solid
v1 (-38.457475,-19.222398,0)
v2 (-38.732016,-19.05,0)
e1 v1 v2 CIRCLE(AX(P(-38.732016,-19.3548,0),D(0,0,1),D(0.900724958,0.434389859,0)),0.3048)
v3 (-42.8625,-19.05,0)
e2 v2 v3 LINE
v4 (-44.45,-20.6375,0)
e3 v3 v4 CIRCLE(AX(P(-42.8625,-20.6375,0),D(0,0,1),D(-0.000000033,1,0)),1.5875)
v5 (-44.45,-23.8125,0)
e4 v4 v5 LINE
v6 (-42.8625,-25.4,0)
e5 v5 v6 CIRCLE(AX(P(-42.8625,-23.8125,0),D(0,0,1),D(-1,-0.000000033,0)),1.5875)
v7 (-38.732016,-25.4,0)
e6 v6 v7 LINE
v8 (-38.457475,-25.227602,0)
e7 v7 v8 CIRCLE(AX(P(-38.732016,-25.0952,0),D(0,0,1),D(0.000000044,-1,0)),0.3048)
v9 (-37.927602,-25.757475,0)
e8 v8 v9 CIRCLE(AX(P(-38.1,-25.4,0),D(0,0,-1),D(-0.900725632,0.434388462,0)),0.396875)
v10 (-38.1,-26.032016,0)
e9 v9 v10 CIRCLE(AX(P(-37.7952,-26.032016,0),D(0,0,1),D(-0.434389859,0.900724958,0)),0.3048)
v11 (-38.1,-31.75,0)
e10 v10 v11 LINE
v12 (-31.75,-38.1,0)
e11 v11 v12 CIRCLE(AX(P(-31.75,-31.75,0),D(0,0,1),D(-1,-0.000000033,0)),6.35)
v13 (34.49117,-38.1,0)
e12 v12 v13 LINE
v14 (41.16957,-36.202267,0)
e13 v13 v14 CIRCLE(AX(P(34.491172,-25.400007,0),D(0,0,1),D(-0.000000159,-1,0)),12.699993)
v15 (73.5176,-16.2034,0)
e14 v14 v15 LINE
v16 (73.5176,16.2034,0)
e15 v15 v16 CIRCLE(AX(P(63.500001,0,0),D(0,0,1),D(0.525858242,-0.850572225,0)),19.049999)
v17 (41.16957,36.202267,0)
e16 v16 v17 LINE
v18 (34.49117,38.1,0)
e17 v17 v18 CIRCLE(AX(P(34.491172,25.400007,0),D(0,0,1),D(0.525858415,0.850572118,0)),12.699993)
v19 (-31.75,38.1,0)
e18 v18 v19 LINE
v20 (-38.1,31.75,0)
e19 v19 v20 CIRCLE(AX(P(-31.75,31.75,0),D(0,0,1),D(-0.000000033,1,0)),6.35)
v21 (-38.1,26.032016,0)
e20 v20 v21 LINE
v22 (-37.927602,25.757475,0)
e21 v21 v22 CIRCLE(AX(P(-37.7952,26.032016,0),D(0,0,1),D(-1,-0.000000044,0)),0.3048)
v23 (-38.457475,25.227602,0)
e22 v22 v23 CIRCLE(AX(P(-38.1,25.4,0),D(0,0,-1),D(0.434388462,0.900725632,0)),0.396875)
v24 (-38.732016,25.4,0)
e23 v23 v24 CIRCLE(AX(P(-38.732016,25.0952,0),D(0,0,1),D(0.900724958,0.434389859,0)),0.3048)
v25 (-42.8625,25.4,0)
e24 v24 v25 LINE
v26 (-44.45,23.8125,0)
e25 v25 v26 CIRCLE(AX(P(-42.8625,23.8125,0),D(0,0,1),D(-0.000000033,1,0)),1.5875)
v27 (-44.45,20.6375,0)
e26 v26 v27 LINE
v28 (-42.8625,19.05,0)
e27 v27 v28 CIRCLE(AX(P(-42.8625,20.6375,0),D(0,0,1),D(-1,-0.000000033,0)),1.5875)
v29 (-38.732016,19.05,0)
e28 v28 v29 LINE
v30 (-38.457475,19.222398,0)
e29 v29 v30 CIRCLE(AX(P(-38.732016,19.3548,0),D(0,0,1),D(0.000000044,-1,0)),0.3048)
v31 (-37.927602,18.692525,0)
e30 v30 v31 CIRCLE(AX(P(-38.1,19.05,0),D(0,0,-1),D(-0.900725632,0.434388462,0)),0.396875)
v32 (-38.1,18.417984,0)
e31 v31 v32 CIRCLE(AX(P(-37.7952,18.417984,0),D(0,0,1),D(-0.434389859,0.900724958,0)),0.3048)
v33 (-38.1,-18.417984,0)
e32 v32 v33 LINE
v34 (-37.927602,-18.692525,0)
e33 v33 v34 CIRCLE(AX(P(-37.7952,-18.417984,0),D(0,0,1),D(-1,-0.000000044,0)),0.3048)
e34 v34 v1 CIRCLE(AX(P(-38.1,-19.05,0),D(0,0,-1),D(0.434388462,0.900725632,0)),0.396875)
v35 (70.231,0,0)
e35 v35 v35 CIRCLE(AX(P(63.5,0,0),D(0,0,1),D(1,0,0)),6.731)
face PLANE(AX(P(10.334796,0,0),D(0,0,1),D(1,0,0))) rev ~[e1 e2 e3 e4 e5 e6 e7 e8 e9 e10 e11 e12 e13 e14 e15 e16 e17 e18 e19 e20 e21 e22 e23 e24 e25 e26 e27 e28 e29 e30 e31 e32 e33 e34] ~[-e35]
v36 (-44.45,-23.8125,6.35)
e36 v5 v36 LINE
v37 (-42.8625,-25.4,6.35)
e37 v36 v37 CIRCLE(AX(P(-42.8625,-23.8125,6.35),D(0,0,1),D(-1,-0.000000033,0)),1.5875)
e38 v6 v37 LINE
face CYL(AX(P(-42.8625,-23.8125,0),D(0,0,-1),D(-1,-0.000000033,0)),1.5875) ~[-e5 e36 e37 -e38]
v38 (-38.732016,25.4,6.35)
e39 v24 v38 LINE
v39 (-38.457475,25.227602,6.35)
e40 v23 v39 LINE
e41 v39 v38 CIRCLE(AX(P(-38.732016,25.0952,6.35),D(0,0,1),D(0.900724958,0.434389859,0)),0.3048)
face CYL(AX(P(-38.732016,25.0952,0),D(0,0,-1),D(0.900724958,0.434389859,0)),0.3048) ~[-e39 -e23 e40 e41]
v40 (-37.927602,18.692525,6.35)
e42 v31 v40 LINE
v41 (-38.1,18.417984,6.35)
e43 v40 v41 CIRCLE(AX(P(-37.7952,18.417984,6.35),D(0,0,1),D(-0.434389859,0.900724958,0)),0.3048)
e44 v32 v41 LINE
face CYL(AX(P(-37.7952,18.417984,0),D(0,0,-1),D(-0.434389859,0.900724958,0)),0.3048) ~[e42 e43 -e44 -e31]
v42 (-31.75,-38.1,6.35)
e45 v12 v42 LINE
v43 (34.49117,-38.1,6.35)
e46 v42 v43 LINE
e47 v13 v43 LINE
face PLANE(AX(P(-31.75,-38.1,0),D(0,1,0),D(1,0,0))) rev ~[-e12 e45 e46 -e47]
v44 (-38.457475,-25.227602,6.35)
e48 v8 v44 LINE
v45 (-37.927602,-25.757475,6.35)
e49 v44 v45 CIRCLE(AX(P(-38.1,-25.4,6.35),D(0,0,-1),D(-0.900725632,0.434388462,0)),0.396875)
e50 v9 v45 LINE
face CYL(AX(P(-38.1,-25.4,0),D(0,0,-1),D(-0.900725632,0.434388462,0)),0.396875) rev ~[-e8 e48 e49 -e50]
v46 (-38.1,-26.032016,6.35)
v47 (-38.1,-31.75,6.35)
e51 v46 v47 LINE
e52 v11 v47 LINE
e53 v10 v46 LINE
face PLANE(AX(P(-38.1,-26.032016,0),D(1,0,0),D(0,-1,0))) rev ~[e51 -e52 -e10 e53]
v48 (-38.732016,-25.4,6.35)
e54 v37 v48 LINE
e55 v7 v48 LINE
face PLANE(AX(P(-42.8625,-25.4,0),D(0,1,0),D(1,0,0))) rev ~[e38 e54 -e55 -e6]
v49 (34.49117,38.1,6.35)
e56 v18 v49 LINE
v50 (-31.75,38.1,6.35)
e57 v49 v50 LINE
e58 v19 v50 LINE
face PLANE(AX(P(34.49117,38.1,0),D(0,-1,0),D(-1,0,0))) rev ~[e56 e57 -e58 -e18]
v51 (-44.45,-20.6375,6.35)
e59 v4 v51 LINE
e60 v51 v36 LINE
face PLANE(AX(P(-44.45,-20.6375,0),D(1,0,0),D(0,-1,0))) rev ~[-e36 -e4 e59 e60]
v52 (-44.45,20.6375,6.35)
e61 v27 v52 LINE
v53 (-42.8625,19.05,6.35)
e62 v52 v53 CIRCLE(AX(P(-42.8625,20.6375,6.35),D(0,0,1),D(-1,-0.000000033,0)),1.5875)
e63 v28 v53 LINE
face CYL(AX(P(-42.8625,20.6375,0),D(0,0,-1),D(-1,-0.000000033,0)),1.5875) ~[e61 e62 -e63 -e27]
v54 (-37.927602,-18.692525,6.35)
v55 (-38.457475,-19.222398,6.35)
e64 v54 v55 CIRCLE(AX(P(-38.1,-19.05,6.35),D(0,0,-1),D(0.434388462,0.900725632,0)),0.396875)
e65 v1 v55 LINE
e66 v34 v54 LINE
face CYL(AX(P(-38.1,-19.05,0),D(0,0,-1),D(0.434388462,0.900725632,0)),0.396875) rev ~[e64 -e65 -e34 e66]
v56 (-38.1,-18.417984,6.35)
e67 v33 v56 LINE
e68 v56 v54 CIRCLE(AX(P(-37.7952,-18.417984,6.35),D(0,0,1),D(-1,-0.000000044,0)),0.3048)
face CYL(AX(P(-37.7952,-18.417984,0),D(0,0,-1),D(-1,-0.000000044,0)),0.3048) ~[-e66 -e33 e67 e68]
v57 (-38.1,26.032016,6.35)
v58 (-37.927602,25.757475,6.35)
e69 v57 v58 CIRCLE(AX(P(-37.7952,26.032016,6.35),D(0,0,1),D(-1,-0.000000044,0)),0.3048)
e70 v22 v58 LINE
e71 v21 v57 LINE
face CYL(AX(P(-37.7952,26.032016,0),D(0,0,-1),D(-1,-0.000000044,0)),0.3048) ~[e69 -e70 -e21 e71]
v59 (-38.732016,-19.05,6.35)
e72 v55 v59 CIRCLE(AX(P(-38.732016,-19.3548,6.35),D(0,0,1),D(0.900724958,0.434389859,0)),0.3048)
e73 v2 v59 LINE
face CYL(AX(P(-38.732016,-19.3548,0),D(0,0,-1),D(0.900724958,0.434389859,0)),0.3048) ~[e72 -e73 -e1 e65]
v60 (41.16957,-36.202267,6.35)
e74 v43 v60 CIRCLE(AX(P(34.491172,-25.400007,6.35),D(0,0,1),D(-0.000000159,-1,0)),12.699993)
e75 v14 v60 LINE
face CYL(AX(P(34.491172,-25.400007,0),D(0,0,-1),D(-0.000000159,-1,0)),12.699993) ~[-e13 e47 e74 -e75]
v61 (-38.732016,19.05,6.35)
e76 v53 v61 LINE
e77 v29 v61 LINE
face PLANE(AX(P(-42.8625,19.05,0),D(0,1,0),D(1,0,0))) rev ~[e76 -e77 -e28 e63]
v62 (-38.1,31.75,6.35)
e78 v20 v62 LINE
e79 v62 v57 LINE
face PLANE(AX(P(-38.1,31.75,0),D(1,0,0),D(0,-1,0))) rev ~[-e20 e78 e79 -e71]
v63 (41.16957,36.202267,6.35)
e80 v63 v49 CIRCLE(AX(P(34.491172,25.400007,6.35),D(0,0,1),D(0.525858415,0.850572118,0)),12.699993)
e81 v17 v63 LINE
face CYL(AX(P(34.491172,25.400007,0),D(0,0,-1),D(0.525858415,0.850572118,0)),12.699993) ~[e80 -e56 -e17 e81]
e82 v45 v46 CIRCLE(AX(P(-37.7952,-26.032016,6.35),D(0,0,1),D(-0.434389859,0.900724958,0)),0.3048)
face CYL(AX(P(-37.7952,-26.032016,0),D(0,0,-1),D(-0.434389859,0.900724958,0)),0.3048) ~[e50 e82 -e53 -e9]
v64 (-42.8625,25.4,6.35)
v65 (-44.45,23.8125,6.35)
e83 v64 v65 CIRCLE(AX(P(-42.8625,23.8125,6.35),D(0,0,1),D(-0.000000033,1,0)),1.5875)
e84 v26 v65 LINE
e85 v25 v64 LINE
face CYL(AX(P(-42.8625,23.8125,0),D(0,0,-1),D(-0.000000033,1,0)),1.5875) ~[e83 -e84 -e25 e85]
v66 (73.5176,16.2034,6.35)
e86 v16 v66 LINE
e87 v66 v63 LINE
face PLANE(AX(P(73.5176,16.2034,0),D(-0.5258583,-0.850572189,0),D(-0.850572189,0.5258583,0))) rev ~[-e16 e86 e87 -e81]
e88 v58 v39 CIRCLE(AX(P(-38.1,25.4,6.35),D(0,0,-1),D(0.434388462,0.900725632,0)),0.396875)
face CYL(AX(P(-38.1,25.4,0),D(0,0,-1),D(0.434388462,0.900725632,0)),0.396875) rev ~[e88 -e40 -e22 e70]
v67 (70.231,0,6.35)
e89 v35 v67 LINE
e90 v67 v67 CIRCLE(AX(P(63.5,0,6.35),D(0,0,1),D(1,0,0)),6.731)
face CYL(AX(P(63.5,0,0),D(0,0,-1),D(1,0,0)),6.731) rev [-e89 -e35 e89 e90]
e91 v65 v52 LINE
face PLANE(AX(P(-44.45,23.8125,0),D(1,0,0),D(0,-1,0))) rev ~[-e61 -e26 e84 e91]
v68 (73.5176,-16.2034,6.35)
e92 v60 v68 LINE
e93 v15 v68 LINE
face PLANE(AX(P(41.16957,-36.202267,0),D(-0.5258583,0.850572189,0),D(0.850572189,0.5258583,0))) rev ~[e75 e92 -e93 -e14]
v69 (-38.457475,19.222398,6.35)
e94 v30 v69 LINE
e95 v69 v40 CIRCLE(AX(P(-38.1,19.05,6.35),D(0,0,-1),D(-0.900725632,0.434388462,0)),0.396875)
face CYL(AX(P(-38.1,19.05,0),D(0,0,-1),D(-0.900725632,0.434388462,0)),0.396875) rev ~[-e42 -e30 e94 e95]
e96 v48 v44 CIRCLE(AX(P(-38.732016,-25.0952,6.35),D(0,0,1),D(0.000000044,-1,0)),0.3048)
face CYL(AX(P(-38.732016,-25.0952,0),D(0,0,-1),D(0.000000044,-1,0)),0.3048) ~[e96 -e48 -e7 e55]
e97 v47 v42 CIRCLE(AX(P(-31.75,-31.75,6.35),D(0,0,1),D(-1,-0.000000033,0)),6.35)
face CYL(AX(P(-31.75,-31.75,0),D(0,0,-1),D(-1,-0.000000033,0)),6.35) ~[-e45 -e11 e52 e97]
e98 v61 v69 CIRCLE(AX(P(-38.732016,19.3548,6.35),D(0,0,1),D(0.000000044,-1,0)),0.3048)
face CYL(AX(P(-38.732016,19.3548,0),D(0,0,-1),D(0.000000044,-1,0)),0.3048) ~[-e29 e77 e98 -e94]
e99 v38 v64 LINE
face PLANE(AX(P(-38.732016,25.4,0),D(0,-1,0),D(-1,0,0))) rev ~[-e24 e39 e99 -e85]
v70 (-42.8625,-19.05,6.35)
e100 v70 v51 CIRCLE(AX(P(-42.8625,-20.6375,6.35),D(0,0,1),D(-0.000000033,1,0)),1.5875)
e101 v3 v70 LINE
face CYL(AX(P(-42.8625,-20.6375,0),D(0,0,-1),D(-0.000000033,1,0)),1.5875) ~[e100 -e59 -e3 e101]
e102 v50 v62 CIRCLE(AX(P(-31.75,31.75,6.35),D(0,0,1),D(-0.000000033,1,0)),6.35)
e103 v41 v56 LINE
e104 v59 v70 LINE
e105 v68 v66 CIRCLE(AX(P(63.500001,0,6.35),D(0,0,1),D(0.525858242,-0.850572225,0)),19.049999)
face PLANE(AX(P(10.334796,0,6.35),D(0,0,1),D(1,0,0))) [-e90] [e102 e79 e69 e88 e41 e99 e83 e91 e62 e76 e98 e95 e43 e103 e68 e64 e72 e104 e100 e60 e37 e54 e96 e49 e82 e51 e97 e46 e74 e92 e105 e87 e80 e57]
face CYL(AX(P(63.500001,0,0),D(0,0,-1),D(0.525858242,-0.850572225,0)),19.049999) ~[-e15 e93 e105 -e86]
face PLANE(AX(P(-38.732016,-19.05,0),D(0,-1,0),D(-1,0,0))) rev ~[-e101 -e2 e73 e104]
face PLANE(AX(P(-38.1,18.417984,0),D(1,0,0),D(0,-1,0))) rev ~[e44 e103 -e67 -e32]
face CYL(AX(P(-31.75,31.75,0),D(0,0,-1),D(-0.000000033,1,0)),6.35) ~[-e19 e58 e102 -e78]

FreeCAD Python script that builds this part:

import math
import FreeCAD as App
import Part
import Sketcher
from FreeCAD import Vector
Q = App.Units.Quantity

doc = App.newDocument("Part")
body = doc.addObject("PartDesign::Body", "Body")

# Sketch on XY plane
sketch1 = body.newObject("Sketcher::SketchObject", "Sketch")
sketch1.AttachmentSupport = (doc.getObject("XY_Plane"), [""])
sketch1.MapMode = "FlatFace"
sketch1.addGeometry(Part.ArcOfCircle(Part.Circle(Vector(34.491172, 25.400007, 0), Vector(0, 0, 1), 12.699993), math.radians(58.273951), math.radians(90.000009)), False)
sketch1.addGeometry(Part.LineSegment(Vector(34.49117, 38.1, 0), Vector(-31.75, 38.1, 0)), False)
sketch1.addGeometry(Part.ArcOfCircle(Part.Circle(Vector(-31.75, 31.75, 0), Vector(0, 0, 1), 6.35), math.radians(90.000002), math.radians(179.999998)), False)
sketch1.addGeometry(Part.LineSegment(Vector(-38.1, 31.75, 0), Vector(-38.1, 26.032016, 0)), False)
sketch1.addGeometry(Part.ArcOfCircle(Part.Circle(Vector(-37.7952, 26.032016, 0), Vector(0, 0, 1), 0.3048), math.radians(-179.999997), math.radians(-115.746476)), False)
sketch1.addGeometry(Part.ArcOfCircle(Part.Circle(Vector(-38.1, 25.4, 0), Vector(0, 0, 1), 0.396875), math.radians(-154.253613), math.radians(64.253613)), False)
sketch1.addGeometry(Part.ArcOfCircle(Part.Circle(Vector(-38.732016, 25.0952, 0), Vector(0, 0, 1), 0.3048), math.radians(25.746476), math.radians(89.999997)), False)
sketch1.addGeometry(Part.LineSegment(Vector(-38.732016, 25.4, 0), Vector(-42.8625, 25.4, 0)), False)
sketch1.addGeometry(Part.ArcOfCircle(Part.Circle(Vector(-42.8625, 23.8125, 0), Vector(0, 0, 1), 1.5875), math.radians(90.000002), math.radians(179.999998)), False)
sketch1.addGeometry(Part.LineSegment(Vector(-44.45, 23.8125, 0), Vector(-44.45, 20.6375, 0)), False)
sketch1.addGeometry(Part.ArcOfCircle(Part.Circle(Vector(-42.8625, 20.6375, 0), Vector(0, 0, 1), 1.5875), math.radians(-179.999998), math.radians(-90.000002)), False)
sketch1.addGeometry(Part.LineSegment(Vector(-42.8625, 19.05, 0), Vector(-38.732016, 19.05, 0)), False)
sketch1.addGeometry(Part.ArcOfCircle(Part.Circle(Vector(-38.732016, 19.3548, 0), Vector(0, 0, 1), 0.3048), math.radians(-89.999997), math.radians(-25.746476)), False)
sketch1.addGeometry(Part.ArcOfCircle(Part.Circle(Vector(-38.1, 19.05, 0), Vector(0, 0, 1), 0.396875), math.radians(-64.253613), math.radians(154.253613)), False)
sketch1.addGeometry(Part.ArcOfCircle(Part.Circle(Vector(-37.7952, 18.417984, 0), Vector(0, 0, 1), 0.3048), math.radians(115.746476), math.radians(179.999997)), False)
sketch1.addGeometry(Part.LineSegment(Vector(-38.1, 18.417984, 0), Vector(-38.1, -18.417984, 0)), False)
sketch1.addGeometry(Part.ArcOfCircle(Part.Circle(Vector(-37.7952, -18.417984, 0), Vector(0, 0, 1), 0.3048), math.radians(-179.999997), math.radians(-115.746476)), False)
sketch1.addGeometry(Part.ArcOfCircle(Part.Circle(Vector(-38.1, -19.05, 0), Vector(0, 0, 1), 0.396875), math.radians(-154.253613), math.radians(64.253613)), False)
sketch1.addGeometry(Part.ArcOfCircle(Part.Circle(Vector(-38.732016, -19.3548, 0), Vector(0, 0, 1), 0.3048), math.radians(25.746476), math.radians(89.999997)), False)
sketch1.addGeometry(Part.LineSegment(Vector(-38.732016, -19.05, 0), Vector(-42.8625, -19.05, 0)), False)
sketch1.addGeometry(Part.ArcOfCircle(Part.Circle(Vector(-42.8625, -20.6375, 0), Vector(0, 0, 1), 1.5875), math.radians(90.000002), math.radians(179.999998)), False)
sketch1.addGeometry(Part.LineSegment(Vector(-44.45, -20.6375, 0), Vector(-44.45, -23.8125, 0)), False)
sketch1.addGeometry(Part.ArcOfCircle(Part.Circle(Vector(-42.8625, -23.8125, 0), Vector(0, 0, 1), 1.5875), math.radians(-179.999998), math.radians(-90.000002)), False)
sketch1.addGeometry(Part.LineSegment(Vector(-42.8625, -25.4, 0), Vector(-38.732016, -25.4, 0)), False)
sketch1.addGeometry(Part.ArcOfCircle(Part.Circle(Vector(-38.732016, -25.0952, 0), Vector(0, 0, 1), 0.3048), math.radians(-89.999997), math.radians(-25.746476)), False)
sketch1.addGeometry(Part.ArcOfCircle(Part.Circle(Vector(-38.1, -25.4, 0), Vector(0, 0, 1), 0.396875), math.radians(-64.253613), math.radians(154.253613)), False)
sketch1.addGeometry(Part.ArcOfCircle(Part.Circle(Vector(-37.7952, -26.032016, 0), Vector(0, 0, 1), 0.3048), math.radians(115.746476), math.radians(179.999997)), False)
sketch1.addGeometry(Part.LineSegment(Vector(-38.1, -26.032016, 0), Vector(-38.1, -31.75, 0)), False)
sketch1.addGeometry(Part.ArcOfCircle(Part.Circle(Vector(-31.75, -31.75, 0), Vector(0, 0, 1), 6.35), math.radians(-179.999998), math.radians(-90.000002)), False)
sketch1.addGeometry(Part.LineSegment(Vector(-31.75, -38.1, 0), Vector(34.49117, -38.1, 0)), False)
sketch1.addGeometry(Part.ArcOfCircle(Part.Circle(Vector(34.491172, -25.400007, 0), Vector(0, 0, 1), 12.699993), math.radians(-90.000009), math.radians(-58.273951)), False)
sketch1.addGeometry(Part.LineSegment(Vector(41.16957, -36.202267, 0), Vector(73.5176, -16.2034, 0)), False)
sketch1.addGeometry(Part.ArcOfCircle(Part.Circle(Vector(63.500001, 0, 0), Vector(0, 0, 1), 19.049999), math.radians(-58.273962), math.radians(58.273962)), False)
sketch1.addGeometry(Part.LineSegment(Vector(73.5176, 16.2034, 0), Vector(41.16957, 36.202267, 0)), False)
sketch1.addGeometry(Part.Circle(Vector(63.5, 0, 0), Vector(0, 0, 1), 6.731), False)
sketch1.addConstraint(Sketcher.Constraint("Tangent", 0, 2, 1, 1))
sketch1.addConstraint(Sketcher.Constraint("Tangent", 1, 2, 2, 1))
sketch1.addConstraint(Sketcher.Constraint("Tangent", 2, 2, 3, 1))
sketch1.addConstraint(Sketcher.Constraint("Tangent", 3, 2, 4, 1))
sketch1.addConstraint(Sketcher.Constraint("Tangent", 4, 2, 5, 2))
sketch1.addConstraint(Sketcher.Constraint("Tangent", 5, 1, 6, 1))
sketch1.addConstraint(Sketcher.Constraint("Tangent", 6, 2, 7, 1))
sketch1.addConstraint(Sketcher.Constraint("Tangent", 7, 2, 8, 1))
sketch1.addConstraint(Sketcher.Constraint("Tangent", 8, 2, 9, 1))
sketch1.addConstraint(Sketcher.Constraint("Tangent", 9, 2, 10, 1))
sketch1.addConstraint(Sketcher.Constraint("Tangent", 10, 2, 11, 1))
sketch1.addConstraint(Sketcher.Constraint("Tangent", 11, 2, 12, 1))
sketch1.addConstraint(Sketcher.Constraint("Tangent", 12, 2, 13, 2))
sketch1.addConstraint(Sketcher.Constraint("Tangent", 13, 1, 14, 1))
sketch1.addConstraint(Sketcher.Constraint("Tangent", 14, 2, 15, 1))
sketch1.addConstraint(Sketcher.Constraint("Tangent", 15, 2, 16, 1))
sketch1.addConstraint(Sketcher.Constraint("Tangent", 16, 2, 17, 2))
sketch1.addConstraint(Sketcher.Constraint("Tangent", 17, 1, 18, 1))
sketch1.addConstraint(Sketcher.Constraint("Tangent", 18, 2, 19, 1))
sketch1.addConstraint(Sketcher.Constraint("Tangent", 19, 2, 20, 1))
sketch1.addConstraint(Sketcher.Constraint("Tangent", 20, 2, 21, 1))
sketch1.addConstraint(Sketcher.Constraint("Tangent", 21, 2, 22, 1))
sketch1.addConstraint(Sketcher.Constraint("Tangent", 22, 2, 23, 1))
sketch1.addConstraint(Sketcher.Constraint("Tangent", 23, 2, 24, 1))
sketch1.addConstraint(Sketcher.Constraint("Tangent", 24, 2, 25, 2))
sketch1.addConstraint(Sketcher.Constraint("Tangent", 25, 1, 26, 1))
sketch1.addConstraint(Sketcher.Constraint("Tangent", 26, 2, 27, 1))
sketch1.addConstraint(Sketcher.Constraint("Tangent", 27, 2, 28, 1))
sketch1.addConstraint(Sketcher.Constraint("Tangent", 28, 2, 29, 1))
sketch1.addConstraint(Sketcher.Constraint("Tangent", 29, 2, 30, 1))
sketch1.addConstraint(Sketcher.Constraint("Tangent", 30, 2, 31, 1))
sketch1.addConstraint(Sketcher.Constraint("Tangent", 31, 2, 32, 1))
sketch1.addConstraint(Sketcher.Constraint("Tangent", 32, 2, 33, 1))
sketch1.addConstraint(Sketcher.Constraint("Tangent", 33, 2, 0, 1))
sketch1.addConstraint(Sketcher.Constraint("Horizontal", 1))
sketch1.addConstraint(Sketcher.Constraint("Vertical", 3))
sketch1.addConstraint(Sketcher.Constraint("Horizontal", 7))
sketch1.addConstraint(Sketcher.Constraint("Vertical", 9))
sketch1.addConstraint(Sketcher.Constraint("Horizontal", 11))
sketch1.addConstraint(Sketcher.Constraint("Vertical", 15))
sketch1.addConstraint(Sketcher.Constraint("Horizontal", 19))
sketch1.addConstraint(Sketcher.Constraint("Vertical", 21))
sketch1.addConstraint(Sketcher.Constraint("Horizontal", 23))
sketch1.addConstraint(Sketcher.Constraint("Vertical", 27))
sketch1.addConstraint(Sketcher.Constraint("Horizontal", 29))
sketch1.addConstraint(Sketcher.Constraint("Coincident", 34, 3, 32, 3))
sketch1.addConstraint(Sketcher.Constraint("Equal", 4, 6))
sketch1.addConstraint(Sketcher.Constraint("Equal", 8, 10))
sketch1.addConstraint(Sketcher.Constraint("Equal", 6, 12))
sketch1.addConstraint(Sketcher.Constraint("Equal", 5, 13))
sketch1.addConstraint(Sketcher.Constraint("Equal", 12, 14))
sketch1.addConstraint(Sketcher.Constraint("Equal", 14, 16))
sketch1.addConstraint(Sketcher.Constraint("Equal", 13, 17))
sketch1.addConstraint(Sketcher.Constraint("Equal", 16, 18))
sketch1.addConstraint(Sketcher.Constraint("Equal", 10, 20))
sketch1.addConstraint(Sketcher.Constraint("Equal", 20, 22))
sketch1.addConstraint(Sketcher.Constraint("Equal", 18, 24))
sketch1.addConstraint(Sketcher.Constraint("Equal", 17, 25))
sketch1.addConstraint(Sketcher.Constraint("Equal", 24, 26))
sketch1.addConstraint(Sketcher.Constraint("Equal", 2, 28))
sketch1.addConstraint(Sketcher.Constraint("Equal", 0, 30))
sketch1.addConstraint(Sketcher.Constraint("Symmetric", 13, 3, 17, 3, -1))
sketch1.addConstraint(Sketcher.Constraint("Symmetric", 10, 3, 20, 3, -1))
sketch1.addConstraint(Sketcher.Constraint("Symmetric", 6, 3, 24, 3, -1))
sketch1.addConstraint(Sketcher.Constraint("Symmetric", 4, 3, 26, 3, -1))
sketch1.addConstraint(Sketcher.Constraint("Symmetric", 0, 3, 30, 3, -1))
sketch1.addConstraint(Sketcher.Constraint("PointOnObject", 32, 3, -1))
sketch1.addConstraint(Sketcher.Constraint("Horizontal", 5, 3, 6, 2))
sketch1.addConstraint(Sketcher.Constraint("Horizontal", 13, 3, 10, 2))
sketch1.addConstraint(Sketcher.Constraint("Vertical", 6, 3, 12, 3))
sketch1.addConstraint(Sketcher.Constraint("Vertical", 4, 3, 14, 3))
sketch1.addConstraint(Sketcher.Constraint("Vertical", 25, 3, 2, 2))
sketch1.addConstraint(Sketcher.Constraint("Diameter", 34, Q("0.53 in")))
sketch1.addConstraint(Sketcher.Constraint("Radius", 2, Q("0.25 in")))
sketch1.addConstraint(Sketcher.Constraint("Radius", 32, Q("0.75 in")))
sketch1.addConstraint(Sketcher.Constraint("DistanceY", -1, 1, 5, 3, Q("1 in")))
sketch1.addConstraint(Sketcher.Constraint("Radius", 4, Q("0.012 in")))
sketch1.addConstraint(Sketcher.Constraint("Radius", 5, Q("0.015625 in")))
sketch1.addConstraint(Sketcher.Constraint("Radius", 8, Q("0.0625 in")))
sketch1.addConstraint(Sketcher.Constraint("DistanceX", 5, 3, -1, 1, Q("1.5 in")))
sketch1.addConstraint(Sketcher.Constraint("DistanceX", -1, 1, 32, 3, Q("2.5 in")))
sketch1.addConstraint(Sketcher.Constraint("DistanceY", -1, 1, 0, 2, Q("1.5 in")))
sketch1.addConstraint(Sketcher.Constraint("DistanceY", 17, 3, 13, 3, Q("1.5 in")))
sketch1.addConstraint(Sketcher.Constraint("DistanceX", 8, 2, -1, 1, Q("1.75 in")))
sketch1.addConstraint(Sketcher.Constraint("Radius", 0, 12.699993))
sketch1.addConstraint(Sketcher.Constraint("DistanceX", 1, 2, 1, 1, 66.24117))
pad1 = body.newObject("PartDesign::Pad", "Pad")
pad1.Profile = sketch1
pad1.Length = Q("0.25 in")

doc.recompute()
